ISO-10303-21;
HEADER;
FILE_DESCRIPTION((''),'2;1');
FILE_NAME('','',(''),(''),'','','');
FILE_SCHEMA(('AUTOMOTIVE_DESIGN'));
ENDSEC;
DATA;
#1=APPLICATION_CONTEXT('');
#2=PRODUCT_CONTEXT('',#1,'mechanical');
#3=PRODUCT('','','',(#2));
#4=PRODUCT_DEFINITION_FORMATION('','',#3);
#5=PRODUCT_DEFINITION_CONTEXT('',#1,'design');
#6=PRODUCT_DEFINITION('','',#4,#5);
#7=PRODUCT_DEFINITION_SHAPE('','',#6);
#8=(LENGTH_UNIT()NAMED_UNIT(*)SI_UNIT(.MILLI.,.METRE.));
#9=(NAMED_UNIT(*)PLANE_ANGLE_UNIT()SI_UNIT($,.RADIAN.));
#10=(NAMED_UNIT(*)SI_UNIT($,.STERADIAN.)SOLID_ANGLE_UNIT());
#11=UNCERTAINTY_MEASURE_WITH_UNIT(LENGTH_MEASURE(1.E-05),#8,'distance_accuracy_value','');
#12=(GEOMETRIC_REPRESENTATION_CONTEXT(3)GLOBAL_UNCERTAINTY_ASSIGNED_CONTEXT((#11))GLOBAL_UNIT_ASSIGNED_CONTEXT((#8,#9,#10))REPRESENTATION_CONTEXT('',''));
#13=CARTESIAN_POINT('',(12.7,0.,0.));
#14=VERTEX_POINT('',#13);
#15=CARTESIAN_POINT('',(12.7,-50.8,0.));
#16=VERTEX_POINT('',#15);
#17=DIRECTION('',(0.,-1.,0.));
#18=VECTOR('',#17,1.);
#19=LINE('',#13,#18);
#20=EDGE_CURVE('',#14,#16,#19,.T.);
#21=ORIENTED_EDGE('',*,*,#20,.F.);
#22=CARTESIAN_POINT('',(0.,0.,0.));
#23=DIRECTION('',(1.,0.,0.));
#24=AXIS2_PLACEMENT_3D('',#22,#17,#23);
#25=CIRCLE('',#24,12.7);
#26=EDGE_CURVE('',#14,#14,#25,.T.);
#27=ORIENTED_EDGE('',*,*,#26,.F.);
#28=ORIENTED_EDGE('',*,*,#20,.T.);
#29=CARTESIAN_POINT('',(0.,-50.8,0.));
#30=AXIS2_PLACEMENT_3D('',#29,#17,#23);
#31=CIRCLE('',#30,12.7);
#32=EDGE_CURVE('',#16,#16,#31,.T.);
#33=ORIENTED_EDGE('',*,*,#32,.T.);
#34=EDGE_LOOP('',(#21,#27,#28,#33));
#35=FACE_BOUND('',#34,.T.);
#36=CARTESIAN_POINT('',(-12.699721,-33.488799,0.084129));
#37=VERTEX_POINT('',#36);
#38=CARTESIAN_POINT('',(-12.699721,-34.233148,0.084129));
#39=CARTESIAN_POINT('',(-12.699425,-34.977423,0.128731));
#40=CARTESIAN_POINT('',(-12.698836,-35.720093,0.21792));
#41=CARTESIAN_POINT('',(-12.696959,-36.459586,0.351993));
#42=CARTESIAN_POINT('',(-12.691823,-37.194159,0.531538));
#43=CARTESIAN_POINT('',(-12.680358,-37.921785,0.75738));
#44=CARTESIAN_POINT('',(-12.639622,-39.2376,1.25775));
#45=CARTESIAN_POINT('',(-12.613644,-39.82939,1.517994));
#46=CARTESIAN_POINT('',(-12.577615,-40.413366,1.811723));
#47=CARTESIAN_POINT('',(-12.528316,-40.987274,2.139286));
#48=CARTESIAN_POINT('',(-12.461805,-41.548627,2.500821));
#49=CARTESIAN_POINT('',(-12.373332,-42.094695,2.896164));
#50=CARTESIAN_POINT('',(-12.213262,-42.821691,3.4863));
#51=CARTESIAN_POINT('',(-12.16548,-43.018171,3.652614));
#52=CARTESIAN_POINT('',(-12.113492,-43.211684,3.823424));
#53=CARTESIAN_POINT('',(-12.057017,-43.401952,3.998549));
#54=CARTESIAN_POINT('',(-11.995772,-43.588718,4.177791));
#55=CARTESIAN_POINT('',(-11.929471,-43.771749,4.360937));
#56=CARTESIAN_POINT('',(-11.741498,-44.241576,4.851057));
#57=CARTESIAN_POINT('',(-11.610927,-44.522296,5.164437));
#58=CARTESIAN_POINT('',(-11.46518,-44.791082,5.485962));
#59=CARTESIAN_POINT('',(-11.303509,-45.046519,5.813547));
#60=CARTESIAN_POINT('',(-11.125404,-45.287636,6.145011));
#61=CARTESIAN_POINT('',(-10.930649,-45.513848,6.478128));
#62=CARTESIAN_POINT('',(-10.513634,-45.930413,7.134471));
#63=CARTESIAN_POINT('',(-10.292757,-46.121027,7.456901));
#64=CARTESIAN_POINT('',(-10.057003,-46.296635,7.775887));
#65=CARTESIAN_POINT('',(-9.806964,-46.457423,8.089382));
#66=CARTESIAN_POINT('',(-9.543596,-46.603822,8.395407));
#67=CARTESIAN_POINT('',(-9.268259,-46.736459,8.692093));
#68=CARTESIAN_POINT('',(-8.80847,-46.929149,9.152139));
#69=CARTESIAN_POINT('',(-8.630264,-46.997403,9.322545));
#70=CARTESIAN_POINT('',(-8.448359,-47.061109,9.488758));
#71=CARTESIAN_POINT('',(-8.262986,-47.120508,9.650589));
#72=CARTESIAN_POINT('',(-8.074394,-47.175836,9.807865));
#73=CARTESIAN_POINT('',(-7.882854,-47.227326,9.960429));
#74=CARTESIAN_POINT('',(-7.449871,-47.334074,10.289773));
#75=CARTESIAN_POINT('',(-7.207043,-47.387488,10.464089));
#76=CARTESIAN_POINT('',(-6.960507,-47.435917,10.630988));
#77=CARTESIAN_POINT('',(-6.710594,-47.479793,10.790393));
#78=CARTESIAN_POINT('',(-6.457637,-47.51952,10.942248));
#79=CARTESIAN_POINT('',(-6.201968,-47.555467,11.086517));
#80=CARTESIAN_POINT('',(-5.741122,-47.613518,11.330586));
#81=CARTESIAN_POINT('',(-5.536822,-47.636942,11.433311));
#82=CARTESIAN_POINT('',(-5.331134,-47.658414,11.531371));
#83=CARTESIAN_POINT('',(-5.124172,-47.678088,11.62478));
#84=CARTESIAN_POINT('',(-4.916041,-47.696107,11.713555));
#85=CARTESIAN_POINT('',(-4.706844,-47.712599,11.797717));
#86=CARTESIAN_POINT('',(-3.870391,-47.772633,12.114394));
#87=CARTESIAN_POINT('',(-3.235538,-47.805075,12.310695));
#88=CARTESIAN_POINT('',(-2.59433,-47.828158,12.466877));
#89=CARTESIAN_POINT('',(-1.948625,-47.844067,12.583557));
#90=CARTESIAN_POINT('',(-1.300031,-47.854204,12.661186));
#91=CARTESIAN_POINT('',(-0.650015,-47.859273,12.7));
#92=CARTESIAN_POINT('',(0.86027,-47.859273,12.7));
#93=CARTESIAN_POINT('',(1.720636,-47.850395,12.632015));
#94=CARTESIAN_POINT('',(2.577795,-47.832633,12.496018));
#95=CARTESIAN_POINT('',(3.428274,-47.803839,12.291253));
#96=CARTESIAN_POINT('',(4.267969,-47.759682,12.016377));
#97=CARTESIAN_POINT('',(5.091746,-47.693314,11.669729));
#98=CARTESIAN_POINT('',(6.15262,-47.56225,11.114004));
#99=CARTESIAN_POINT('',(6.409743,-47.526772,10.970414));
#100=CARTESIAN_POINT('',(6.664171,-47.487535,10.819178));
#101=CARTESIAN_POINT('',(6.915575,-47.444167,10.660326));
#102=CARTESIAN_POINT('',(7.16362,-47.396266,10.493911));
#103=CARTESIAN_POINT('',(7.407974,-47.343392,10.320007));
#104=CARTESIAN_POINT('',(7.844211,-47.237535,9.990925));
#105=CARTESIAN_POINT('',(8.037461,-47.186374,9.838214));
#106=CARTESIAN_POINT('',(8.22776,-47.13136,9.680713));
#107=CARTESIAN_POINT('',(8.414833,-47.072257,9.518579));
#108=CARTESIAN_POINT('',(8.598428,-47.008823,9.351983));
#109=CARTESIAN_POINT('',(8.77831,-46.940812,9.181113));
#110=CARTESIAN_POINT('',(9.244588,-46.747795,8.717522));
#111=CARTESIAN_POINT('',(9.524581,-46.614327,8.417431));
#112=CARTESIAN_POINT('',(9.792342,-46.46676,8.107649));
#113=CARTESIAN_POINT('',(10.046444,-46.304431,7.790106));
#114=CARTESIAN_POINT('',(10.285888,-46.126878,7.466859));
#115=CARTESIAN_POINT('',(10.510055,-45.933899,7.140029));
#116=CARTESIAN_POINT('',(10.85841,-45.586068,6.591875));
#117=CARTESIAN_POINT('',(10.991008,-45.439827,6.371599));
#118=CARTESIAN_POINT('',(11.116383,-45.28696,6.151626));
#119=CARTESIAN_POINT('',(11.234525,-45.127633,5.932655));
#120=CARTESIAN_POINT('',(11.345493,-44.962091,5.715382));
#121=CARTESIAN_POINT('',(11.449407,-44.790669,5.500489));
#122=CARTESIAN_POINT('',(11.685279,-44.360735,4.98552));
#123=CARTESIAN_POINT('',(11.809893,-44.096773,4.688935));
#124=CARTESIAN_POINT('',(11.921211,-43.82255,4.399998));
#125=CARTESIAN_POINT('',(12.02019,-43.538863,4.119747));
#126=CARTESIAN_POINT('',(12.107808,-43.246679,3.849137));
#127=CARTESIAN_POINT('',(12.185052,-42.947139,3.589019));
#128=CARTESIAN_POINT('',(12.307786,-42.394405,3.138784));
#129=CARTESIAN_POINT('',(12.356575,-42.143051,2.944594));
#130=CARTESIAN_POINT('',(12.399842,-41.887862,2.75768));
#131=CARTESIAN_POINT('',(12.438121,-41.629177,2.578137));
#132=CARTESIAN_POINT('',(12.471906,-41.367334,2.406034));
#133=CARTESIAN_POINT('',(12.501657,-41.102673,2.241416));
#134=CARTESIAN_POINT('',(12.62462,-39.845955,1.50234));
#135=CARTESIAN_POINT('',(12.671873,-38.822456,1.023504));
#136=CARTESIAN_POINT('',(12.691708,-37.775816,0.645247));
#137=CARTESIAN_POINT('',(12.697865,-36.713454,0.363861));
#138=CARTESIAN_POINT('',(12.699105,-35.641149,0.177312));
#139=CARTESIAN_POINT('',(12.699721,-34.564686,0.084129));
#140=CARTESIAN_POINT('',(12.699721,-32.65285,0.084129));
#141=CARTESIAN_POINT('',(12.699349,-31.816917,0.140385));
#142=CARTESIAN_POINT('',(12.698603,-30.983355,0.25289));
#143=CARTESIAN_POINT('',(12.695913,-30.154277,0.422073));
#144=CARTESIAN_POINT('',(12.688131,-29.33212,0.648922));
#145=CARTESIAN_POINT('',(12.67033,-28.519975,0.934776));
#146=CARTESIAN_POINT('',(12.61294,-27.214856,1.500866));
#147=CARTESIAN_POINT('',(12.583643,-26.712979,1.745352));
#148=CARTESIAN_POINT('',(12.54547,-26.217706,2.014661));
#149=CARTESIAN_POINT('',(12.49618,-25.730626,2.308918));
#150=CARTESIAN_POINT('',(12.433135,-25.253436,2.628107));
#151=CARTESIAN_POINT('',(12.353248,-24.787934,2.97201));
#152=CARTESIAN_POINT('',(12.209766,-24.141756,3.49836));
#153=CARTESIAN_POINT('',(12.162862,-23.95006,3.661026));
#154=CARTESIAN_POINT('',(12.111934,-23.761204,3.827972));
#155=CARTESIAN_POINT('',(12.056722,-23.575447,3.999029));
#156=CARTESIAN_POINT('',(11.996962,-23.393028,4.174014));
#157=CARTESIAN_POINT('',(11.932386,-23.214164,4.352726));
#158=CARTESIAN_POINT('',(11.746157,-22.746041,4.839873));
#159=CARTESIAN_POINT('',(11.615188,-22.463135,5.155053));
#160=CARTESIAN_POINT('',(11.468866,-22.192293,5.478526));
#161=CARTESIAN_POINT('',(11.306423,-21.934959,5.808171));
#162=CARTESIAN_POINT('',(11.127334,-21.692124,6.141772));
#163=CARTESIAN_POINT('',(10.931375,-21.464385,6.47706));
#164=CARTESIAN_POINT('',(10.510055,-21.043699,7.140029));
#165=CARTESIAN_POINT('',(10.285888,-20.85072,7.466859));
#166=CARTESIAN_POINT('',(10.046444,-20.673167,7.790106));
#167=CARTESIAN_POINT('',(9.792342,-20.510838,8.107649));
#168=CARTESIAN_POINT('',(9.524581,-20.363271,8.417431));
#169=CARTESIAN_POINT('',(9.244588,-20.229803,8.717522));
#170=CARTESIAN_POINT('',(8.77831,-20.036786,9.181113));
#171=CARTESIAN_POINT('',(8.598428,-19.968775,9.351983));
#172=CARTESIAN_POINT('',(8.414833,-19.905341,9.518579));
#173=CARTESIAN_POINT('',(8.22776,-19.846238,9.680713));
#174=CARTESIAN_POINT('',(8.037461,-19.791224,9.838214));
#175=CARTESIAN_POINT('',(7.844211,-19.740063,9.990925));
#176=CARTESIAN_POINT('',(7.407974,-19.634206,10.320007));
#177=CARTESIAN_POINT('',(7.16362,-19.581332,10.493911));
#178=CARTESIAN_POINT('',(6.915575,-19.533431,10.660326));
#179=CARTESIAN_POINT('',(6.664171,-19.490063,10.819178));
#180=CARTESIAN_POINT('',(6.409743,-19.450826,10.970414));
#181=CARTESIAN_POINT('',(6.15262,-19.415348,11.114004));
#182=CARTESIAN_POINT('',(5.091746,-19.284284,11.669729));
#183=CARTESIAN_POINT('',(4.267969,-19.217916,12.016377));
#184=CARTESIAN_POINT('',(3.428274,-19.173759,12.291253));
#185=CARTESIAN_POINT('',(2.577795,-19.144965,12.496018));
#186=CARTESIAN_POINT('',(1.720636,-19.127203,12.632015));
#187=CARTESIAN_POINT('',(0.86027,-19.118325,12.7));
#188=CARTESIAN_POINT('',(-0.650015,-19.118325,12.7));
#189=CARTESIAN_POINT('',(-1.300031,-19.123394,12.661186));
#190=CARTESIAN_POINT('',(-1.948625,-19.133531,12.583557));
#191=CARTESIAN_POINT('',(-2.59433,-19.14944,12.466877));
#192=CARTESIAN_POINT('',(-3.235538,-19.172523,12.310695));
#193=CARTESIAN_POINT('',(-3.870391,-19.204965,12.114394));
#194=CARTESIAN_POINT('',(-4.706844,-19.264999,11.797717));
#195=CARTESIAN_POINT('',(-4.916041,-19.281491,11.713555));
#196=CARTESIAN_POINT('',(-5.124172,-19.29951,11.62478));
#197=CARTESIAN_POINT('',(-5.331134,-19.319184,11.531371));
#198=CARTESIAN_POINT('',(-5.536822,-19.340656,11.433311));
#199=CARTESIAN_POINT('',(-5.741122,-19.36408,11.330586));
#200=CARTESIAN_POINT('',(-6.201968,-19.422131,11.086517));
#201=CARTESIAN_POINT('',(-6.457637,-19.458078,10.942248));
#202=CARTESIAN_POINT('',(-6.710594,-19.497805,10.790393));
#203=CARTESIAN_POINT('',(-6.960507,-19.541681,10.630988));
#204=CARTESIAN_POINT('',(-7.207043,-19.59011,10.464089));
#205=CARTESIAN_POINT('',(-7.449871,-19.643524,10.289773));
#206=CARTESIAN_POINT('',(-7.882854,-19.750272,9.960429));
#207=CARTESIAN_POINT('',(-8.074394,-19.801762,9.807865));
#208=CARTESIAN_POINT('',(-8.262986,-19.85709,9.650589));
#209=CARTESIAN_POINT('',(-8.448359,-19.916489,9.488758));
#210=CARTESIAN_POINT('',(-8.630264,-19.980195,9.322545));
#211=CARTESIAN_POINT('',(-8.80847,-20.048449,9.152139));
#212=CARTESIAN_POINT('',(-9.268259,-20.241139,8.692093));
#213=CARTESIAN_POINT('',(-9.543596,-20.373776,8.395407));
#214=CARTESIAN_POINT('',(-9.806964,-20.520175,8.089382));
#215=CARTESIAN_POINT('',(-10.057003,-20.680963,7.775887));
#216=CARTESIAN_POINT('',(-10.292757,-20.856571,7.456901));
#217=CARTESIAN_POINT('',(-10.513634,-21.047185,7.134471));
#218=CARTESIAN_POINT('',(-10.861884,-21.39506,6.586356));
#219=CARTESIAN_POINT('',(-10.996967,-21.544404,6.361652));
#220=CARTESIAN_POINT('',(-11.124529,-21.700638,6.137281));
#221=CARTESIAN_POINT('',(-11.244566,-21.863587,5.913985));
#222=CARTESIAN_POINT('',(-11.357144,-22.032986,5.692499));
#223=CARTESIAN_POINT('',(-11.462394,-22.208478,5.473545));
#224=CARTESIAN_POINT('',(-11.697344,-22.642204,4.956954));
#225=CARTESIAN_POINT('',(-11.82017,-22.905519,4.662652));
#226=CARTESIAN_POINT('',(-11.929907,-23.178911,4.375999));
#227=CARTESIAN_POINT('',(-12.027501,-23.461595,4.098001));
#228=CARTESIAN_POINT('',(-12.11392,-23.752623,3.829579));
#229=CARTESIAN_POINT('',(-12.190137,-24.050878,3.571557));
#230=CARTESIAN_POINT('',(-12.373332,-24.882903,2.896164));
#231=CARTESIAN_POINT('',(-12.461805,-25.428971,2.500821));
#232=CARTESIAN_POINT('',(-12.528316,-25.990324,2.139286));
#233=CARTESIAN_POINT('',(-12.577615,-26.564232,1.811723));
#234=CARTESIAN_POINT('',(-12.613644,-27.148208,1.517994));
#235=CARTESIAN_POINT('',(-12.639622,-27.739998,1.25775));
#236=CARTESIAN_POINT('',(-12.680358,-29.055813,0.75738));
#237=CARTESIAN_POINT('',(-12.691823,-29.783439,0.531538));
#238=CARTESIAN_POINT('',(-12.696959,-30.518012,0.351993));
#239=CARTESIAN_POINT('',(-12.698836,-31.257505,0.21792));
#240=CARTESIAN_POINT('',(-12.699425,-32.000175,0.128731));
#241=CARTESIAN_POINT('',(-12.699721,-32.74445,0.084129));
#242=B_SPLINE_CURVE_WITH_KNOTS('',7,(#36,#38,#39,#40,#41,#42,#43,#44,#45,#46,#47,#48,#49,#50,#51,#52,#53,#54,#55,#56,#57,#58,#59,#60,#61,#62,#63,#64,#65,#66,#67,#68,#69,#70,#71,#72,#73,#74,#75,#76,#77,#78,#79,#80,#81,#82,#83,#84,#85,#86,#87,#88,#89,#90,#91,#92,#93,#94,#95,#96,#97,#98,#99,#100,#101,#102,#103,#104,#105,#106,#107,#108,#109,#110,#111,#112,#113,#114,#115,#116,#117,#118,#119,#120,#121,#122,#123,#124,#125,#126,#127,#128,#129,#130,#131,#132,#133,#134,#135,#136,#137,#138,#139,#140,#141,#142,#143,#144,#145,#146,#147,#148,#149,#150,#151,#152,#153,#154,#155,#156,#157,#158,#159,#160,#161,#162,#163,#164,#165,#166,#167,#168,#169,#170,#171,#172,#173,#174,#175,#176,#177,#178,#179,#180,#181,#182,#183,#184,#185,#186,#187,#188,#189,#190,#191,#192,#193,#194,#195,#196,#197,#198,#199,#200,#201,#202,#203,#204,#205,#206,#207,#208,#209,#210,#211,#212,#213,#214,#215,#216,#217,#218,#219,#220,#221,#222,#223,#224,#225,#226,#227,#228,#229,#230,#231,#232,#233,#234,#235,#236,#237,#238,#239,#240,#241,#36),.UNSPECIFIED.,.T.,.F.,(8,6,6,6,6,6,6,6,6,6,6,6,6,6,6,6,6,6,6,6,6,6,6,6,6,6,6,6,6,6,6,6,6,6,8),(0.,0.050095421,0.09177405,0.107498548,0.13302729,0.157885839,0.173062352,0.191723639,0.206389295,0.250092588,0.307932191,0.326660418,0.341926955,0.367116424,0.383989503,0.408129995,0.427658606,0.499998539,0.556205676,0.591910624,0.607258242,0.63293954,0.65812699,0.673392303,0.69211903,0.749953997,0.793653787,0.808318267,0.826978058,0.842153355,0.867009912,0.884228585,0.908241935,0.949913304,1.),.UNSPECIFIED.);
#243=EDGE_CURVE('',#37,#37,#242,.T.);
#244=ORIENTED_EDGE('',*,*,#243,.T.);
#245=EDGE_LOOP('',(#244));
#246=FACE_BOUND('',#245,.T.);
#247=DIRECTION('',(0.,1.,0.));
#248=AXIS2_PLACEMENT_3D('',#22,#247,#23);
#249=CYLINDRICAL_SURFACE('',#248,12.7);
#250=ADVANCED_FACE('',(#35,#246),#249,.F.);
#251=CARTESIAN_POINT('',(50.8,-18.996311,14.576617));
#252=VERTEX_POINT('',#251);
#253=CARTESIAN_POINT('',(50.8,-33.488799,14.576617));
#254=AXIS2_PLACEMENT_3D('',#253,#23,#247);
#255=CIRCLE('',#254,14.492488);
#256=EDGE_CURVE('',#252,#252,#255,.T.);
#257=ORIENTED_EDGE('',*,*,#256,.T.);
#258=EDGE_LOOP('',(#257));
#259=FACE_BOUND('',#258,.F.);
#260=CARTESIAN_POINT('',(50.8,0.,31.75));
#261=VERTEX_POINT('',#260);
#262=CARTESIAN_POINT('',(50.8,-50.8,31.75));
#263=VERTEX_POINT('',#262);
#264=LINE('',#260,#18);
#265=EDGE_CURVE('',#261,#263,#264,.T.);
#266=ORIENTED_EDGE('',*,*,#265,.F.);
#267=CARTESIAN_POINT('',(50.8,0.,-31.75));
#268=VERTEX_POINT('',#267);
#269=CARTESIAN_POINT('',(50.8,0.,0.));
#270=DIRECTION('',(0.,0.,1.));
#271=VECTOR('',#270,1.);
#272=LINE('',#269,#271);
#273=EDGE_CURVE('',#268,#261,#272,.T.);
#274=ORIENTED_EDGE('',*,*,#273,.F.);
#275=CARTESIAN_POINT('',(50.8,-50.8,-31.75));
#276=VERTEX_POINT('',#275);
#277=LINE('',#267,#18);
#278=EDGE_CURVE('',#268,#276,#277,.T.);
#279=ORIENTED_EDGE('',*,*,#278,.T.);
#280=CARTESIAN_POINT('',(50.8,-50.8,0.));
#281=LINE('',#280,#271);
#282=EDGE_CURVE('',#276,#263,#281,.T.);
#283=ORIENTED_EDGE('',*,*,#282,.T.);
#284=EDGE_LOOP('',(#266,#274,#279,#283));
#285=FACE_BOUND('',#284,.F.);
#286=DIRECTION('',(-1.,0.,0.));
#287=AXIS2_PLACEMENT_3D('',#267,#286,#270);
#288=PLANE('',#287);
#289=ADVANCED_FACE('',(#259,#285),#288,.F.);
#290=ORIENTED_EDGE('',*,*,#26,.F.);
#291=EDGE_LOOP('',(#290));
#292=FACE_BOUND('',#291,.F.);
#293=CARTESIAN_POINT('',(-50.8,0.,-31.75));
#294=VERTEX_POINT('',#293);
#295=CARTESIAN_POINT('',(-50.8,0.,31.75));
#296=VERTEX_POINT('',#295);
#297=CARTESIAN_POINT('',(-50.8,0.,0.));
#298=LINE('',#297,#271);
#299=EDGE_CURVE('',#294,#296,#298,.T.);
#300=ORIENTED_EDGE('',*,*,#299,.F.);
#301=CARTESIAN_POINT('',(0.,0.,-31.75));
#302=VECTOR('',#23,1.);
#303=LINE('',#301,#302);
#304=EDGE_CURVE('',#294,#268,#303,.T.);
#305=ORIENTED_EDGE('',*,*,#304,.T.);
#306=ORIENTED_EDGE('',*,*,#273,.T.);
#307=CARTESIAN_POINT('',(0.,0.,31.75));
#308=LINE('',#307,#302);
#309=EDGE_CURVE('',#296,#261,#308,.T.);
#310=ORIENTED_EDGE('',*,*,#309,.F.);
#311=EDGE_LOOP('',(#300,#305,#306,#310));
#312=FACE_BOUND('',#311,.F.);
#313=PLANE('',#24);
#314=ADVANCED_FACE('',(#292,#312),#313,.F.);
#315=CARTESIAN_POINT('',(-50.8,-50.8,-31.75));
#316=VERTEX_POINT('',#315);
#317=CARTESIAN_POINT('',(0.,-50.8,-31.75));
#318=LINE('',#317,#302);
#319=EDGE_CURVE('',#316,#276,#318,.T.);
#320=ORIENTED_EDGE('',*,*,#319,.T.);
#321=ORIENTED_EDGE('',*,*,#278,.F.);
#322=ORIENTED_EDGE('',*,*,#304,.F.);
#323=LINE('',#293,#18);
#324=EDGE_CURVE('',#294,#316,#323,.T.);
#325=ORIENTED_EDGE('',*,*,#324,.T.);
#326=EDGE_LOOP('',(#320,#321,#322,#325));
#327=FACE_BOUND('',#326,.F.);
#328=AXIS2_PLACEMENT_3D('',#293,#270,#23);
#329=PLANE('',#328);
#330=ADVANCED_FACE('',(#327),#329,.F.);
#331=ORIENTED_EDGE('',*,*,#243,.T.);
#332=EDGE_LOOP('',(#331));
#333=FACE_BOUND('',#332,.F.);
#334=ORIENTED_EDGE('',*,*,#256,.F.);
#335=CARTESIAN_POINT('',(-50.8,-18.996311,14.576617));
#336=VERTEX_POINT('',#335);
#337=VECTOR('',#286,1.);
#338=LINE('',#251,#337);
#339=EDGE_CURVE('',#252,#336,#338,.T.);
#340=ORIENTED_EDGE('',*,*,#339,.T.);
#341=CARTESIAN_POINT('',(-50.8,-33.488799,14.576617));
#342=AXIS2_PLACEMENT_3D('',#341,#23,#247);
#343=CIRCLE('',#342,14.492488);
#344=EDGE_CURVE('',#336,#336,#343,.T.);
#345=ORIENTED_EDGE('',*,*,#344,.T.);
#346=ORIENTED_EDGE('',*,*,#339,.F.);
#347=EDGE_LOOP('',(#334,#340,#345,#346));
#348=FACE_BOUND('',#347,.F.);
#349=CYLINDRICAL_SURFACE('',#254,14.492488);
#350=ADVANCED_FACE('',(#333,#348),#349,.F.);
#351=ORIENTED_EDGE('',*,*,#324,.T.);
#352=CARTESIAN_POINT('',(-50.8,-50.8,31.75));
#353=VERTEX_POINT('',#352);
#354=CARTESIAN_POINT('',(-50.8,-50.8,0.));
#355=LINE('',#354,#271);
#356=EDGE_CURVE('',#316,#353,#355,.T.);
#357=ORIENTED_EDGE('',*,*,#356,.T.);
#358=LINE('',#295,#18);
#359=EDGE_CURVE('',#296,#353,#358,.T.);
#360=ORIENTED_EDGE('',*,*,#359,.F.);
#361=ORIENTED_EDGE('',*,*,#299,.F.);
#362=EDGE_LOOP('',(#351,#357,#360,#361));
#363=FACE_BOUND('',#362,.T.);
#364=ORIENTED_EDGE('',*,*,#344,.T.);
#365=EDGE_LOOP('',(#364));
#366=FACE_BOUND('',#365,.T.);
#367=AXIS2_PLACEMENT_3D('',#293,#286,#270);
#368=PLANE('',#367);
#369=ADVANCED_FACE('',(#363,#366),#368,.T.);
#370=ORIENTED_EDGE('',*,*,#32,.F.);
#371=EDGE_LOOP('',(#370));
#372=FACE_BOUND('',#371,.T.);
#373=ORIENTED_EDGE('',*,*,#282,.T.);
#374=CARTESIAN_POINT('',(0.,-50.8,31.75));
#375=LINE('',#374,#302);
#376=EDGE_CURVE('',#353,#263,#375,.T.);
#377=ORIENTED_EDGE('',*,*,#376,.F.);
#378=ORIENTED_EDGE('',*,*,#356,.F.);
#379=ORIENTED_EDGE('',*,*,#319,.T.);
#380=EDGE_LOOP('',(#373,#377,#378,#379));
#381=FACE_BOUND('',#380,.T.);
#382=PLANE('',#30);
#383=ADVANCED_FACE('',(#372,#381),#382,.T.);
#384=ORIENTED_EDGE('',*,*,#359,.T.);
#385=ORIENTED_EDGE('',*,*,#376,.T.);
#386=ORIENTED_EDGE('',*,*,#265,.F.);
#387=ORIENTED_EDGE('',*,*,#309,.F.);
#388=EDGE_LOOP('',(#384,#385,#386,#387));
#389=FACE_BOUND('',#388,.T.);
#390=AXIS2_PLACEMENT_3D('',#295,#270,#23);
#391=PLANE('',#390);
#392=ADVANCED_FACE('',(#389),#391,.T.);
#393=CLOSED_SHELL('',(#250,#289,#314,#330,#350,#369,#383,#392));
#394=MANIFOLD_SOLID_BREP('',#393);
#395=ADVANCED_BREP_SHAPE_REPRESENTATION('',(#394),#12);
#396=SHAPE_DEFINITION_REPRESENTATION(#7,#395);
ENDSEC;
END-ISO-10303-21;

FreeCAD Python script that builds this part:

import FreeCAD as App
import Part
import Sketcher
from FreeCAD import Vector
Q = App.Units.Quantity


def add_polygon(sketch, points):
    """Adds a closed chain of lines whose ends are joined by coincident constraints."""
    first, n = sketch.GeometryCount, len(points)
    for a, b in zip(points, points[1:] + points[:1]):
        sketch.addGeometry(Part.LineSegment(App.Vector(*a, 0), App.Vector(*b, 0)), False)
    for i in range(n):
        sketch.addConstraint(Sketcher.Constraint("Coincident", first + i, 2, first + (i + 1) % n, 1))

doc = App.newDocument("Part")
params = doc.addObject("Spreadsheet::Sheet", "Params")
for row, (alias, value) in enumerate([
    ("sketch1_diameter", "1 in"),
    ("sketch1_width", "4 in"),
    ("sketch1_height", "2.5 in"),
    ("pad1_length", "2 in"),
], start=1):
    params.set(f"A{row}", alias)
    params.set(f"B{row}", "=" + value)
    params.setAlias(f"B{row}", alias)

body = doc.addObject("PartDesign::Body", "Body")

sketch1 = doc.addObject("Sketcher::SketchObject", "Sketch")
body.addObject(sketch1)
sketch1.AttachmentSupport = (doc.XZ_Plane, [""])
sketch1.MapMode = "FlatFace"
add_polygon(sketch1, [(-50.8, 31.75), (-50.8, -31.75), (50.8, -31.75), (50.8, 31.75)])
sketch1.addGeometry(Part.Circle(Vector(0, 0, 0), Vector(0, 0, 1), 12.7), False)
sketch1.addConstraint([
    Sketcher.Constraint("Vertical", 0),
    Sketcher.Constraint("Horizontal", 1),
    Sketcher.Constraint("Vertical", 2),
    Sketcher.Constraint("Horizontal", 3),
    Sketcher.Constraint("Coincident", 4, 3, -1, 1),
    Sketcher.Constraint("Symmetric", 0, 2, 2, 2, -1, 1),
    Sketcher.Constraint("Diameter", 4, Q("1 in")),
    Sketcher.Constraint("DistanceX", 1, 1, 1, 2, Q("4 in")),
    Sketcher.Constraint("DistanceY", 0, 2, 0, 1, Q("2.5 in")),
])
sketch1.setExpression("Constraints[10]", "Params.sketch1_diameter")
sketch1.setExpression("Constraints[11]", "Params.sketch1_width")
sketch1.setExpression("Constraints[12]", "Params.sketch1_height")
pad1 = doc.addObject("PartDesign::Pad", "Pad")
body.addObject(pad1)
pad1.Profile = sketch1
pad1.setExpression("Length", "Params.pad1_length")

sketch2 = doc.addObject("Sketcher::SketchObject", "Sketch001")
body.addObject(sketch2)
sketch2.AttachmentSupport = (doc.YZ_Plane, [""])
sketch2.MapMode = "FlatFace"
sketch2.AttachmentOffset = App.Placement(Vector(0, 0, 2 * 25.4), App.Rotation())
sketch2.addGeometry(Part.Circle(Vector(-33.488799, 14.576617, 0), Vector(0, 0, 1), 14.492488), False)
sketch2.addConstraint([
    Sketcher.Constraint("Diameter", 0, Q("28.984976 mm")),
    Sketcher.Constraint("DistanceX", 0, 3, -1, 1, Q("33.488799 mm")),
    Sketcher.Constraint("DistanceY", -1, 1, 0, 3, Q("14.576617 mm")),
])
pocket1 = doc.addObject("PartDesign::Pocket", "Pocket")
body.addObject(pocket1)
pocket1.Profile = sketch2
pocket1.Type = "ThroughAll"

doc.recompute()
